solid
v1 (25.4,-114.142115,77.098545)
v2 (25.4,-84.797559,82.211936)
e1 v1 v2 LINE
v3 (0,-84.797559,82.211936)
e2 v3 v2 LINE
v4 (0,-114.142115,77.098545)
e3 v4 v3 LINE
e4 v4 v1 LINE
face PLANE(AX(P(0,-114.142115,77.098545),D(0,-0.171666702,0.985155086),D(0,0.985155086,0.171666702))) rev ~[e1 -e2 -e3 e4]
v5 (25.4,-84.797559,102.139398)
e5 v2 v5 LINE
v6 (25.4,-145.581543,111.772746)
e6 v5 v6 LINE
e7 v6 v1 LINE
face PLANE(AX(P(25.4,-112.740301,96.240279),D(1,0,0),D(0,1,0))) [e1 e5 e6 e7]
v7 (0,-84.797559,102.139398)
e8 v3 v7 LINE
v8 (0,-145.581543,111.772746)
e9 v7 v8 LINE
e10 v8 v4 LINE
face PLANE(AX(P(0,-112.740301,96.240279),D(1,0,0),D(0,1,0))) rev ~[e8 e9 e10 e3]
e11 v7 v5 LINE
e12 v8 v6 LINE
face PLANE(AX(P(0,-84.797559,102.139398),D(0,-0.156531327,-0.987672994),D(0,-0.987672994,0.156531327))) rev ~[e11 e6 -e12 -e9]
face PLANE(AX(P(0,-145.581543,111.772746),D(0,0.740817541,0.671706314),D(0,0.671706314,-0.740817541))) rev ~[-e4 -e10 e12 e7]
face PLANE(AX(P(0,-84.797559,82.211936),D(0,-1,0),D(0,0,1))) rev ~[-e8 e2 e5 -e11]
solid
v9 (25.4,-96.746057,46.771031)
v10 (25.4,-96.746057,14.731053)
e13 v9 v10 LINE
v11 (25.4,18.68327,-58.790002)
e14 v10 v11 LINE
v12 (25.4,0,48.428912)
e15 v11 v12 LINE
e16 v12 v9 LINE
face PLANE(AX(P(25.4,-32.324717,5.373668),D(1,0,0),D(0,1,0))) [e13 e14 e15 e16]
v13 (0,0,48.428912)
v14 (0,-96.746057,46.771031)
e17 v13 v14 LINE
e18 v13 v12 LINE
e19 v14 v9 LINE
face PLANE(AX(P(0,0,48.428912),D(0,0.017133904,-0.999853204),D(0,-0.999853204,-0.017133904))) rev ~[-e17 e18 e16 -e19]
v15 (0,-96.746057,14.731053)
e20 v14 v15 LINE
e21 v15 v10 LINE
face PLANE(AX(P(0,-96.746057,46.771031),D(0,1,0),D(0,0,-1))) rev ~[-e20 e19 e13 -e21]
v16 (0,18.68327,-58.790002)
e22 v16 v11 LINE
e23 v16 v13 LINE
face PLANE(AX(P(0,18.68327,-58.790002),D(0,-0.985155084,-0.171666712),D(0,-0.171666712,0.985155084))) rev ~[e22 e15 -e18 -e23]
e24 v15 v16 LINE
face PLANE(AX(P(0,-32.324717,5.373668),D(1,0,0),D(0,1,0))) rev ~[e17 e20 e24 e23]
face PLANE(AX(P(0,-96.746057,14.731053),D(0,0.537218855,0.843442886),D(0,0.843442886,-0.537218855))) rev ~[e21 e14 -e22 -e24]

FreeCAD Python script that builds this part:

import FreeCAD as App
import Part
import Sketcher
from FreeCAD import Vector
Q = App.Units.Quantity

doc = App.newDocument("Part")
params = doc.addObject("Spreadsheet::Sheet", "Params")
for row, (alias, value) in enumerate([
    ("pad1_length", "1 in"),
], start=1):
    params.set(f"A{row}", alias)
    params.set(f"B{row}", "=" + value)
    params.setAlias(f"B{row}", alias)

body = doc.addObject("PartDesign::Body", "Body")
body.AllowCompound = True

sketch1 = body.newObject("Sketcher::SketchObject", "Sketch")
sketch1.AttachmentSupport = (doc.getObject("YZ_Plane"), [""])
sketch1.MapMode = "FlatFace"
sketch1.addGeometry([
    Part.LineSegment(Vector(0, 48.428912, 0), Vector(-96.746057, 46.771031, 0)),
    Part.LineSegment(Vector(-96.746057, 46.771031, 0), Vector(-96.746057, 14.731053, 0)),
    Part.LineSegment(Vector(-96.746057, 14.731053, 0), Vector(18.68327, -58.790002, 0)),
    Part.LineSegment(Vector(18.68327, -58.790002, 0), Vector(0, 48.428912, 0)),
    Part.LineSegment(Vector(-114.142115, 77.098545, 0), Vector(-84.797559, 82.211936, 0)),
    Part.LineSegment(Vector(-84.797559, 82.211936, 0), Vector(-84.797559, 102.139398, 0)),
    Part.LineSegment(Vector(-84.797559, 102.139398, 0), Vector(-145.581543, 111.772746, 0)),
    Part.LineSegment(Vector(-145.581543, 111.772746, 0), Vector(-114.142115, 77.098545, 0)),
], False)
sketch1.addConstraint([
    Sketcher.Constraint("Coincident", 0, 2, 1, 1),
    Sketcher.Constraint("Coincident", 1, 2, 2, 1),
    Sketcher.Constraint("Coincident", 2, 2, 3, 1),
    Sketcher.Constraint("Coincident", 3, 2, 0, 1),
    Sketcher.Constraint("Coincident", 4, 2, 5, 1),
    Sketcher.Constraint("Coincident", 5, 2, 6, 1),
    Sketcher.Constraint("Coincident", 6, 2, 7, 1),
    Sketcher.Constraint("Coincident", 7, 2, 4, 1),
    Sketcher.Constraint("Vertical", 1),
    Sketcher.Constraint("Vertical", 5),
    Sketcher.Constraint("PointOnObject", 3, 2, -2),
    Sketcher.Constraint("Perpendicular", 3, 4),
    Sketcher.Constraint("DistanceX", 0, 2, -1, 1, Q("3.8088999 in")),
    Sketcher.Constraint("DistanceY", 1, 2, 1, 1, Q("32.039978 mm")),
    Sketcher.Constraint("DistanceY", -1, 1, 5, 2, Q("102.139398 mm")),
    Sketcher.Constraint("DistanceY", 2, 2, 5, 2, Q("160.9294 mm")),
    Sketcher.Constraint("DistanceY", 7, 2, 6, 2, Q("34.674201 mm")),
    Sketcher.Constraint("Distance", 0, Q("96.760261 mm")),
    Sketcher.Constraint("Distance", 2, Q("136.854942 mm")),
    Sketcher.Constraint("Distance", 6, Q("61.54262 mm")),
    Sketcher.Constraint("Distance", 7, Q("46.805319 mm")),
    Sketcher.Constraint("DistanceY", 5, 1, 5, 2, Q("19.927462 mm")),
    Sketcher.Constraint("DistanceY", -1, 1, 0, 2, Q("46.771031 mm")),
    Sketcher.Constraint("DistanceX", 4, 2, -1, 1, Q("84.797559 mm")),
])
pad1 = body.newObject("PartDesign::Pad", "Pad")
pad1.Profile = sketch1
pad1.setExpression("Length", "Params.pad1_length")

doc.recompute()
